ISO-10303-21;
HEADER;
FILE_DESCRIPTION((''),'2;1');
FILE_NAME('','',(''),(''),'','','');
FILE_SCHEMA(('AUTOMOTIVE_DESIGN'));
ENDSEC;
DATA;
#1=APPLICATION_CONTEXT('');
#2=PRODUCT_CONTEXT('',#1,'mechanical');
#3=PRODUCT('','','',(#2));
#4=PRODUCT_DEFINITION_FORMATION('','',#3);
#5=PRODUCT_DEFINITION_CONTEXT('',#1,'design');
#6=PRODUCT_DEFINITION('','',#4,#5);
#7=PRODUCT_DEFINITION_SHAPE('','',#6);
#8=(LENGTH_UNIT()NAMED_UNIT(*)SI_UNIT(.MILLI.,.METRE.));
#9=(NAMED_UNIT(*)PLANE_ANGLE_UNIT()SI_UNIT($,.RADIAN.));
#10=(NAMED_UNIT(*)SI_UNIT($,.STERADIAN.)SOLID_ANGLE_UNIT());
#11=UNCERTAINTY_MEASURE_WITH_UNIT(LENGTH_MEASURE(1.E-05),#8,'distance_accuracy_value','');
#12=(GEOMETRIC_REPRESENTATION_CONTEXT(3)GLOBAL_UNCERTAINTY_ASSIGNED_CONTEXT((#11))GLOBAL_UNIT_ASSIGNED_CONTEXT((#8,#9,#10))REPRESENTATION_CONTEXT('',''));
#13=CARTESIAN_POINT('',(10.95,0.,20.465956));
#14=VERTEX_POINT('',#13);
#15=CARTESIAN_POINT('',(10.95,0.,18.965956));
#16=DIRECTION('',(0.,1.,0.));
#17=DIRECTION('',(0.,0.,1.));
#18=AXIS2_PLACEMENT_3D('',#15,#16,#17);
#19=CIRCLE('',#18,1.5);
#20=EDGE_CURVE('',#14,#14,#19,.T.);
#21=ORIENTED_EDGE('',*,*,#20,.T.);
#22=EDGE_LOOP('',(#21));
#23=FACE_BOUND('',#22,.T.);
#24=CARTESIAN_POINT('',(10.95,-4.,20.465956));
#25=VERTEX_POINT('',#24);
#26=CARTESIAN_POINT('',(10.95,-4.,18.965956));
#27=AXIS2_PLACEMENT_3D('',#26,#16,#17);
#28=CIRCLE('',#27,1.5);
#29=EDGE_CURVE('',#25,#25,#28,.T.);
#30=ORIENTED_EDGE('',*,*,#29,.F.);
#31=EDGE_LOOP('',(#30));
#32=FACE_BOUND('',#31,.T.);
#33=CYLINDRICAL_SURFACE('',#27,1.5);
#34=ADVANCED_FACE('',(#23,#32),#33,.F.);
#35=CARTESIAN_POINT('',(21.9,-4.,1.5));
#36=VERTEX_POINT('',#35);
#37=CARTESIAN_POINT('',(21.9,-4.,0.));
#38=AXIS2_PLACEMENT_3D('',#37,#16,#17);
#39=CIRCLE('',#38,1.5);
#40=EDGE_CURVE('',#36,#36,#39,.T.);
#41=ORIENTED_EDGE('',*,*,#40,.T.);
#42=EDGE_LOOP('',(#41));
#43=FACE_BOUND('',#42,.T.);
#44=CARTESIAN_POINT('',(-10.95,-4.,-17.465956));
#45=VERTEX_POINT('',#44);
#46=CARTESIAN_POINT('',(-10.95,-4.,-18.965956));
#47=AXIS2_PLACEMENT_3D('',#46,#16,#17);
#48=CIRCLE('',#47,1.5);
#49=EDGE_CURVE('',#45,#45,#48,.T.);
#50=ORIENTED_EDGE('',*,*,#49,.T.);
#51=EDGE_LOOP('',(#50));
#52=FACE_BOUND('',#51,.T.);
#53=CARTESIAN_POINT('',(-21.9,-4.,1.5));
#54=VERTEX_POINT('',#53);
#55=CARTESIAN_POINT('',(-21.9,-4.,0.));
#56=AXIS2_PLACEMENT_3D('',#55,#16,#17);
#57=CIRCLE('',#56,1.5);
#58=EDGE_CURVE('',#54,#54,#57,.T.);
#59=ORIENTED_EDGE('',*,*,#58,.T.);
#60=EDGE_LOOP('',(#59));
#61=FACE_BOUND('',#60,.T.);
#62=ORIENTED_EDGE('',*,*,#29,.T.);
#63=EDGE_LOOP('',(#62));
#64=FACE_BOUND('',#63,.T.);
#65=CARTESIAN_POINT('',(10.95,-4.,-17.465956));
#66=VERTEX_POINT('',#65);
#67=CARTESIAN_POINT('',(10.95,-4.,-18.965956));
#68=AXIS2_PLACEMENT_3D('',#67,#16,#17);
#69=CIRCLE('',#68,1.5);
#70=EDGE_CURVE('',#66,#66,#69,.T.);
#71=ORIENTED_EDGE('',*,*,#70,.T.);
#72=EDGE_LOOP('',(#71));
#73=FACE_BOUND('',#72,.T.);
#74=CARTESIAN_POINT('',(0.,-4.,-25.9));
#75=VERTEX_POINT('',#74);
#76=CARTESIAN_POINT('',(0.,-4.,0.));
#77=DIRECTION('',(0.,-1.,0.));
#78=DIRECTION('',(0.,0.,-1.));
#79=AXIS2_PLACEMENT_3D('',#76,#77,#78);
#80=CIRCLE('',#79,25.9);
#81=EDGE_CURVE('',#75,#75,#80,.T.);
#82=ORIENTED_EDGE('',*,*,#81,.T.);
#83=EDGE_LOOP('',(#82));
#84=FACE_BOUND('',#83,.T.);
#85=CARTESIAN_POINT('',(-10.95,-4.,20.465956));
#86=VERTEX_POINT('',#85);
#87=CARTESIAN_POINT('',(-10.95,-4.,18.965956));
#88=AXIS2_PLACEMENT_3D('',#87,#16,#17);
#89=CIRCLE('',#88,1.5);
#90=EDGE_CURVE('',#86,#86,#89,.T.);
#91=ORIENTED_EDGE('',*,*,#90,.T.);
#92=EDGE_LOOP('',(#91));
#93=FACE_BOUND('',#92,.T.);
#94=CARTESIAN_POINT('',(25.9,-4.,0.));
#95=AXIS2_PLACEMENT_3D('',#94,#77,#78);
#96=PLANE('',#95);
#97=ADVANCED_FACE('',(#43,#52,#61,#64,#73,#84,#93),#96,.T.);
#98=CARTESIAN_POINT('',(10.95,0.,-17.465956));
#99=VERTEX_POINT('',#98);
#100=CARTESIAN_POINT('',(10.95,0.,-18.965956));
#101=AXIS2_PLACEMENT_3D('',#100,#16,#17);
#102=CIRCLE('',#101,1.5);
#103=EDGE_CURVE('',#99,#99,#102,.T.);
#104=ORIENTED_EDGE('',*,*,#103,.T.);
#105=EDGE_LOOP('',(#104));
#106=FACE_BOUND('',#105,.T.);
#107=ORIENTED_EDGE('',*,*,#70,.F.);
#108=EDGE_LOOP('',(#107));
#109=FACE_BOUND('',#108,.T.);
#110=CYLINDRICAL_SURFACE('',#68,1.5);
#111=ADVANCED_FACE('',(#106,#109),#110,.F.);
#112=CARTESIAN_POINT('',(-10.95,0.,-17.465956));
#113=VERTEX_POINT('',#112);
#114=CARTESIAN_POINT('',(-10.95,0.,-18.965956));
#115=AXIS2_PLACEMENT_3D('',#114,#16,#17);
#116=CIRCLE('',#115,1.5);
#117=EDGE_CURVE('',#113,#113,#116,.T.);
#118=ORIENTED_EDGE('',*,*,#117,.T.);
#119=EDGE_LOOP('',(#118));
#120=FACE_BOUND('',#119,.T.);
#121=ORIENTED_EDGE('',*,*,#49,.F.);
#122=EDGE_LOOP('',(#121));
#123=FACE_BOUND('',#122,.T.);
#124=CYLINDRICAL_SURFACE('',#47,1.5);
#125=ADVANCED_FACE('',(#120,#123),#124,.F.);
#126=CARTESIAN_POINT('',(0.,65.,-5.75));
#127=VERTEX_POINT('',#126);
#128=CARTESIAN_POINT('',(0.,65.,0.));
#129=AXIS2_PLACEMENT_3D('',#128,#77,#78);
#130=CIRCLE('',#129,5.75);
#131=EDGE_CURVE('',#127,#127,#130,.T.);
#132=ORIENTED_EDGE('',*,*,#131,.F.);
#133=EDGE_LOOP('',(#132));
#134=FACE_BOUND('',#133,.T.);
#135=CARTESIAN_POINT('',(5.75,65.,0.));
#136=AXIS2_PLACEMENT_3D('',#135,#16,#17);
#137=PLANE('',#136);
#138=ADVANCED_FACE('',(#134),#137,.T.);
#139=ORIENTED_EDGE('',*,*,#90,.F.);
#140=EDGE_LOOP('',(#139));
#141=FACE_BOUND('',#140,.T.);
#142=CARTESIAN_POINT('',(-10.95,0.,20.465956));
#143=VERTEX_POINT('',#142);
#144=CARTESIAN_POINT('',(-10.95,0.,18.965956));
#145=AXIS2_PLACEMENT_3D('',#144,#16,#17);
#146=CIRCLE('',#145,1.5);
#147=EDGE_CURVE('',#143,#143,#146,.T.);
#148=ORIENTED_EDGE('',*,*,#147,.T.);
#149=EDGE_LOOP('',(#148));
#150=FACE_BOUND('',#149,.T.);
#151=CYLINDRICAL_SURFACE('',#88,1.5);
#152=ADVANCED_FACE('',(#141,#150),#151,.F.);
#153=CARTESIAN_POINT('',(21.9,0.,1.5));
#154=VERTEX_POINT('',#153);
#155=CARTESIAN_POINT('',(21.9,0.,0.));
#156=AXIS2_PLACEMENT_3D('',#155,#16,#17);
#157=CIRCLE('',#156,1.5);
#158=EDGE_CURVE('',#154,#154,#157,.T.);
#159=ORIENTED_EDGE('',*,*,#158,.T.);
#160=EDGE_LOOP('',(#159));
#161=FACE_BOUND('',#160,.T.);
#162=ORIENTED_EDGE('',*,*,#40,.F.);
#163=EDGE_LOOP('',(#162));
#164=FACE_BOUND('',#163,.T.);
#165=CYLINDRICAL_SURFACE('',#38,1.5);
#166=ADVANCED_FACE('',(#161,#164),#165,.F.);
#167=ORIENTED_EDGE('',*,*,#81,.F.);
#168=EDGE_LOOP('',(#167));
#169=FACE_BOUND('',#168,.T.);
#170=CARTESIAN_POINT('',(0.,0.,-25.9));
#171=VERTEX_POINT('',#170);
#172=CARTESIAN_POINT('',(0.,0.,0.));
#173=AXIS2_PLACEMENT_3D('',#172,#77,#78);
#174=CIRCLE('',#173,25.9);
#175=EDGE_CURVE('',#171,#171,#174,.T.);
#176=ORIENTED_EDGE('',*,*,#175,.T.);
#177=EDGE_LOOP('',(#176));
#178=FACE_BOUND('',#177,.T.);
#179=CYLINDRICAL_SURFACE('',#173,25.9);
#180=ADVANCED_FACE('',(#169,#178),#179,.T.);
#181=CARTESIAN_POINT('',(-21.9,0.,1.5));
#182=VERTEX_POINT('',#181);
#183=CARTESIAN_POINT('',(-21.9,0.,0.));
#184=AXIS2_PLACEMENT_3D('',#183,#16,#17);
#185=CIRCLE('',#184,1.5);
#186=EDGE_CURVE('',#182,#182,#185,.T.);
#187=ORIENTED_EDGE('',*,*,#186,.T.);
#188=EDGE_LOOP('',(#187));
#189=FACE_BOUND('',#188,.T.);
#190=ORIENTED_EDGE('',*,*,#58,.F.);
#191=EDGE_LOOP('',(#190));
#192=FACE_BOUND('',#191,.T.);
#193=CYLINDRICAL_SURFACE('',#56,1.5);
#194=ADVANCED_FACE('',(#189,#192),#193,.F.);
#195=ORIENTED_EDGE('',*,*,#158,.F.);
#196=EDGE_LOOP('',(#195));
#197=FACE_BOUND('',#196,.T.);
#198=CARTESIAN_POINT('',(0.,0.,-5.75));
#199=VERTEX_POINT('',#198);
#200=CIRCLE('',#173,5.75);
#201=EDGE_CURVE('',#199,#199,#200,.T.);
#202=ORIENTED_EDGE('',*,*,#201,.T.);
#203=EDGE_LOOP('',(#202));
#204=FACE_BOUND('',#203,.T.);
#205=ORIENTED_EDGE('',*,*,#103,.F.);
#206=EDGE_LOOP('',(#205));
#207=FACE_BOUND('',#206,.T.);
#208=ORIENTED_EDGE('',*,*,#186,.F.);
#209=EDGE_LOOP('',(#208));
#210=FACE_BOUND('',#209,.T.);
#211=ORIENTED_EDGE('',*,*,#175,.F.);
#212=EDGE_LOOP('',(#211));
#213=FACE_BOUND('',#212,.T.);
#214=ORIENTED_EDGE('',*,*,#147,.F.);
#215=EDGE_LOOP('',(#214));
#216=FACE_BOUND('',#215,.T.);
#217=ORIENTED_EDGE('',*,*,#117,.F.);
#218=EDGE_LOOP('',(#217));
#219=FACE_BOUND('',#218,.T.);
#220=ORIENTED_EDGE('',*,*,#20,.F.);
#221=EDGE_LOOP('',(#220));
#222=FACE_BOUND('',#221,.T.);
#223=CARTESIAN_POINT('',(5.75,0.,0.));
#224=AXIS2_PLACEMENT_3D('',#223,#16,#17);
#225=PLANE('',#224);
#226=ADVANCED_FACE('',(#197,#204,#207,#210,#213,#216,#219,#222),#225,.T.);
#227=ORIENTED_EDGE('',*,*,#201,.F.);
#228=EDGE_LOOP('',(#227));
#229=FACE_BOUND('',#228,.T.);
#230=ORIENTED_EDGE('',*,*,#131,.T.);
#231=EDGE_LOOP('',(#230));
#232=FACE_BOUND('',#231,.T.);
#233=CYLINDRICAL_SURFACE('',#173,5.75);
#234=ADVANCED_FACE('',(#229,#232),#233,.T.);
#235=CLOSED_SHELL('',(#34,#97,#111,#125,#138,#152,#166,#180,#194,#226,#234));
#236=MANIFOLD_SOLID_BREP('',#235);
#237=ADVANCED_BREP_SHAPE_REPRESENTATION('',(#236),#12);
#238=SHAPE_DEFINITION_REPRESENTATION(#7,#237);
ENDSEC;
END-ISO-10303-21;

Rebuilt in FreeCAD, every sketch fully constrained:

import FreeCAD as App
import Part
import Sketcher


def add_polygon(sketch, points):
    """Adds a closed chain of lines whose ends are joined by coincident constraints."""
    first, n = sketch.GeometryCount, len(points)
    for a, b in zip(points, points[1:] + points[:1]):
        sketch.addGeometry(Part.LineSegment(App.Vector(*a, 0), App.Vector(*b, 0)), False)
    for i in range(n):
        sketch.addConstraint(Sketcher.Constraint("Coincident", first + i, 2, first + (i + 1) % n, 1))

doc = App.newDocument("Part")
body = doc.addObject("PartDesign::Body", "Body")

sketch1 = body.newObject("Sketcher::SketchObject", "Sketch")
sketch1.AttachmentSupport = (doc.getObject("XY_Plane"), [""])
sketch1.MapMode = "FlatFace"
add_polygon(sketch1, [(25.9, 0), (5.8, 0), (5.8, 65), (0, 65), (0, -4), (25.9, -4)])
sketch1.addConstraint(Sketcher.Constraint("Horizontal", 0))
sketch1.addConstraint(Sketcher.Constraint("Vertical", 1))
sketch1.addConstraint(Sketcher.Constraint("Horizontal", 2))
sketch1.addConstraint(Sketcher.Constraint("Vertical", 3))
sketch1.addConstraint(Sketcher.Constraint("Horizontal", 4))
sketch1.addConstraint(Sketcher.Constraint("Vertical", 5))
sketch1.addConstraint(Sketcher.Constraint("PointOnObject", 0, 2, -1))
sketch1.addConstraint(Sketcher.Constraint("PointOnObject", 2, 2, -2))
sketch1.addConstraint(Sketcher.Constraint("DistanceY", 1, 1, 1, 2, 65.0))
sketch1.addConstraint(Sketcher.Constraint("DistanceY", 3, 2, 3, 1, 69.0))
sketch1.addConstraint(Sketcher.Constraint("DistanceX", 4, 1, 4, 2, 25.9))
sketch1.addConstraint(Sketcher.Constraint("DistanceX", 0, 2, 0, 1, 20.15))
revolution = body.newObject("PartDesign::Revolution", "Revolution")
revolution.Profile = sketch1
revolution.ReferenceAxis = (sketch1, ["V_Axis"])
revolution.Angle = 360

sketch2 = body.newObject("Sketcher::SketchObject", "Sketch001")
sketch2.AttachmentSupport = (doc.getObject("XZ_Plane"), [""])
sketch2.MapMode = "FlatFace"
sketch2.addGeometry(Part.Circle(App.Vector(21.9, 0, 0), App.Vector(0, 0, 1), 1.5), False)
sketch2.addGeometry(Part.Circle(App.Vector(10.9, 19, 0), App.Vector(0, 0, 1), 1.5), False)
sketch2.addGeometry(Part.Circle(App.Vector(-10.9, 19, 0), App.Vector(0, 0, 1), 1.5), False)
sketch2.addGeometry(Part.Circle(App.Vector(-21.9, 0, 0), App.Vector(0, 0, 1), 1.5), False)
sketch2.addGeometry(Part.Circle(App.Vector(-10.9, -19, 0), App.Vector(0, 0, 1), 1.5), False)
sketch2.addGeometry(Part.Circle(App.Vector(10.9, -19, 0), App.Vector(0, 0, 1), 1.5), False)
sketch2.addConstraint(Sketcher.Constraint("Equal", 0, 1))
sketch2.addConstraint(Sketcher.Constraint("Equal", 1, 2))
sketch2.addConstraint(Sketcher.Constraint("Equal", 2, 3))
sketch2.addConstraint(Sketcher.Constraint("Equal", 3, 4))
sketch2.addConstraint(Sketcher.Constraint("Equal", 4, 5))
sketch2.addConstraint(Sketcher.Constraint("Symmetric", 0, 3, 3, 3, -1, 1))
sketch2.addConstraint(Sketcher.Constraint("Symmetric", 1, 3, 4, 3, -1, 1))
sketch2.addConstraint(Sketcher.Constraint("Symmetric", 2, 3, 5, 3, -1, 1))
sketch2.addConstraint(Sketcher.Constraint("Symmetric", 1, 3, 2, 3, -2))
sketch2.addConstraint(Sketcher.Constraint("PointOnObject", 0, 3, -1))
sketch2.addConstraint(Sketcher.Constraint("Diameter", 0, 3.0))
sketch2.addConstraint(Sketcher.Constraint("DistanceX", -1, 1, 0, 3, 21.9))
sketch2.addConstraint(Sketcher.Constraint("DistanceX", 2, 3, 1, 3, 21.9))
sketch2.addConstraint(Sketcher.Constraint("DistanceY", -1, 1, 1, 3, 18.965956))
pocket1 = body.newObject("PartDesign::Pocket", "Pocket")
pocket1.Profile = sketch2
pocket1.Type = "ThroughAll"
pocket1.Midplane = True

doc.recompute()
